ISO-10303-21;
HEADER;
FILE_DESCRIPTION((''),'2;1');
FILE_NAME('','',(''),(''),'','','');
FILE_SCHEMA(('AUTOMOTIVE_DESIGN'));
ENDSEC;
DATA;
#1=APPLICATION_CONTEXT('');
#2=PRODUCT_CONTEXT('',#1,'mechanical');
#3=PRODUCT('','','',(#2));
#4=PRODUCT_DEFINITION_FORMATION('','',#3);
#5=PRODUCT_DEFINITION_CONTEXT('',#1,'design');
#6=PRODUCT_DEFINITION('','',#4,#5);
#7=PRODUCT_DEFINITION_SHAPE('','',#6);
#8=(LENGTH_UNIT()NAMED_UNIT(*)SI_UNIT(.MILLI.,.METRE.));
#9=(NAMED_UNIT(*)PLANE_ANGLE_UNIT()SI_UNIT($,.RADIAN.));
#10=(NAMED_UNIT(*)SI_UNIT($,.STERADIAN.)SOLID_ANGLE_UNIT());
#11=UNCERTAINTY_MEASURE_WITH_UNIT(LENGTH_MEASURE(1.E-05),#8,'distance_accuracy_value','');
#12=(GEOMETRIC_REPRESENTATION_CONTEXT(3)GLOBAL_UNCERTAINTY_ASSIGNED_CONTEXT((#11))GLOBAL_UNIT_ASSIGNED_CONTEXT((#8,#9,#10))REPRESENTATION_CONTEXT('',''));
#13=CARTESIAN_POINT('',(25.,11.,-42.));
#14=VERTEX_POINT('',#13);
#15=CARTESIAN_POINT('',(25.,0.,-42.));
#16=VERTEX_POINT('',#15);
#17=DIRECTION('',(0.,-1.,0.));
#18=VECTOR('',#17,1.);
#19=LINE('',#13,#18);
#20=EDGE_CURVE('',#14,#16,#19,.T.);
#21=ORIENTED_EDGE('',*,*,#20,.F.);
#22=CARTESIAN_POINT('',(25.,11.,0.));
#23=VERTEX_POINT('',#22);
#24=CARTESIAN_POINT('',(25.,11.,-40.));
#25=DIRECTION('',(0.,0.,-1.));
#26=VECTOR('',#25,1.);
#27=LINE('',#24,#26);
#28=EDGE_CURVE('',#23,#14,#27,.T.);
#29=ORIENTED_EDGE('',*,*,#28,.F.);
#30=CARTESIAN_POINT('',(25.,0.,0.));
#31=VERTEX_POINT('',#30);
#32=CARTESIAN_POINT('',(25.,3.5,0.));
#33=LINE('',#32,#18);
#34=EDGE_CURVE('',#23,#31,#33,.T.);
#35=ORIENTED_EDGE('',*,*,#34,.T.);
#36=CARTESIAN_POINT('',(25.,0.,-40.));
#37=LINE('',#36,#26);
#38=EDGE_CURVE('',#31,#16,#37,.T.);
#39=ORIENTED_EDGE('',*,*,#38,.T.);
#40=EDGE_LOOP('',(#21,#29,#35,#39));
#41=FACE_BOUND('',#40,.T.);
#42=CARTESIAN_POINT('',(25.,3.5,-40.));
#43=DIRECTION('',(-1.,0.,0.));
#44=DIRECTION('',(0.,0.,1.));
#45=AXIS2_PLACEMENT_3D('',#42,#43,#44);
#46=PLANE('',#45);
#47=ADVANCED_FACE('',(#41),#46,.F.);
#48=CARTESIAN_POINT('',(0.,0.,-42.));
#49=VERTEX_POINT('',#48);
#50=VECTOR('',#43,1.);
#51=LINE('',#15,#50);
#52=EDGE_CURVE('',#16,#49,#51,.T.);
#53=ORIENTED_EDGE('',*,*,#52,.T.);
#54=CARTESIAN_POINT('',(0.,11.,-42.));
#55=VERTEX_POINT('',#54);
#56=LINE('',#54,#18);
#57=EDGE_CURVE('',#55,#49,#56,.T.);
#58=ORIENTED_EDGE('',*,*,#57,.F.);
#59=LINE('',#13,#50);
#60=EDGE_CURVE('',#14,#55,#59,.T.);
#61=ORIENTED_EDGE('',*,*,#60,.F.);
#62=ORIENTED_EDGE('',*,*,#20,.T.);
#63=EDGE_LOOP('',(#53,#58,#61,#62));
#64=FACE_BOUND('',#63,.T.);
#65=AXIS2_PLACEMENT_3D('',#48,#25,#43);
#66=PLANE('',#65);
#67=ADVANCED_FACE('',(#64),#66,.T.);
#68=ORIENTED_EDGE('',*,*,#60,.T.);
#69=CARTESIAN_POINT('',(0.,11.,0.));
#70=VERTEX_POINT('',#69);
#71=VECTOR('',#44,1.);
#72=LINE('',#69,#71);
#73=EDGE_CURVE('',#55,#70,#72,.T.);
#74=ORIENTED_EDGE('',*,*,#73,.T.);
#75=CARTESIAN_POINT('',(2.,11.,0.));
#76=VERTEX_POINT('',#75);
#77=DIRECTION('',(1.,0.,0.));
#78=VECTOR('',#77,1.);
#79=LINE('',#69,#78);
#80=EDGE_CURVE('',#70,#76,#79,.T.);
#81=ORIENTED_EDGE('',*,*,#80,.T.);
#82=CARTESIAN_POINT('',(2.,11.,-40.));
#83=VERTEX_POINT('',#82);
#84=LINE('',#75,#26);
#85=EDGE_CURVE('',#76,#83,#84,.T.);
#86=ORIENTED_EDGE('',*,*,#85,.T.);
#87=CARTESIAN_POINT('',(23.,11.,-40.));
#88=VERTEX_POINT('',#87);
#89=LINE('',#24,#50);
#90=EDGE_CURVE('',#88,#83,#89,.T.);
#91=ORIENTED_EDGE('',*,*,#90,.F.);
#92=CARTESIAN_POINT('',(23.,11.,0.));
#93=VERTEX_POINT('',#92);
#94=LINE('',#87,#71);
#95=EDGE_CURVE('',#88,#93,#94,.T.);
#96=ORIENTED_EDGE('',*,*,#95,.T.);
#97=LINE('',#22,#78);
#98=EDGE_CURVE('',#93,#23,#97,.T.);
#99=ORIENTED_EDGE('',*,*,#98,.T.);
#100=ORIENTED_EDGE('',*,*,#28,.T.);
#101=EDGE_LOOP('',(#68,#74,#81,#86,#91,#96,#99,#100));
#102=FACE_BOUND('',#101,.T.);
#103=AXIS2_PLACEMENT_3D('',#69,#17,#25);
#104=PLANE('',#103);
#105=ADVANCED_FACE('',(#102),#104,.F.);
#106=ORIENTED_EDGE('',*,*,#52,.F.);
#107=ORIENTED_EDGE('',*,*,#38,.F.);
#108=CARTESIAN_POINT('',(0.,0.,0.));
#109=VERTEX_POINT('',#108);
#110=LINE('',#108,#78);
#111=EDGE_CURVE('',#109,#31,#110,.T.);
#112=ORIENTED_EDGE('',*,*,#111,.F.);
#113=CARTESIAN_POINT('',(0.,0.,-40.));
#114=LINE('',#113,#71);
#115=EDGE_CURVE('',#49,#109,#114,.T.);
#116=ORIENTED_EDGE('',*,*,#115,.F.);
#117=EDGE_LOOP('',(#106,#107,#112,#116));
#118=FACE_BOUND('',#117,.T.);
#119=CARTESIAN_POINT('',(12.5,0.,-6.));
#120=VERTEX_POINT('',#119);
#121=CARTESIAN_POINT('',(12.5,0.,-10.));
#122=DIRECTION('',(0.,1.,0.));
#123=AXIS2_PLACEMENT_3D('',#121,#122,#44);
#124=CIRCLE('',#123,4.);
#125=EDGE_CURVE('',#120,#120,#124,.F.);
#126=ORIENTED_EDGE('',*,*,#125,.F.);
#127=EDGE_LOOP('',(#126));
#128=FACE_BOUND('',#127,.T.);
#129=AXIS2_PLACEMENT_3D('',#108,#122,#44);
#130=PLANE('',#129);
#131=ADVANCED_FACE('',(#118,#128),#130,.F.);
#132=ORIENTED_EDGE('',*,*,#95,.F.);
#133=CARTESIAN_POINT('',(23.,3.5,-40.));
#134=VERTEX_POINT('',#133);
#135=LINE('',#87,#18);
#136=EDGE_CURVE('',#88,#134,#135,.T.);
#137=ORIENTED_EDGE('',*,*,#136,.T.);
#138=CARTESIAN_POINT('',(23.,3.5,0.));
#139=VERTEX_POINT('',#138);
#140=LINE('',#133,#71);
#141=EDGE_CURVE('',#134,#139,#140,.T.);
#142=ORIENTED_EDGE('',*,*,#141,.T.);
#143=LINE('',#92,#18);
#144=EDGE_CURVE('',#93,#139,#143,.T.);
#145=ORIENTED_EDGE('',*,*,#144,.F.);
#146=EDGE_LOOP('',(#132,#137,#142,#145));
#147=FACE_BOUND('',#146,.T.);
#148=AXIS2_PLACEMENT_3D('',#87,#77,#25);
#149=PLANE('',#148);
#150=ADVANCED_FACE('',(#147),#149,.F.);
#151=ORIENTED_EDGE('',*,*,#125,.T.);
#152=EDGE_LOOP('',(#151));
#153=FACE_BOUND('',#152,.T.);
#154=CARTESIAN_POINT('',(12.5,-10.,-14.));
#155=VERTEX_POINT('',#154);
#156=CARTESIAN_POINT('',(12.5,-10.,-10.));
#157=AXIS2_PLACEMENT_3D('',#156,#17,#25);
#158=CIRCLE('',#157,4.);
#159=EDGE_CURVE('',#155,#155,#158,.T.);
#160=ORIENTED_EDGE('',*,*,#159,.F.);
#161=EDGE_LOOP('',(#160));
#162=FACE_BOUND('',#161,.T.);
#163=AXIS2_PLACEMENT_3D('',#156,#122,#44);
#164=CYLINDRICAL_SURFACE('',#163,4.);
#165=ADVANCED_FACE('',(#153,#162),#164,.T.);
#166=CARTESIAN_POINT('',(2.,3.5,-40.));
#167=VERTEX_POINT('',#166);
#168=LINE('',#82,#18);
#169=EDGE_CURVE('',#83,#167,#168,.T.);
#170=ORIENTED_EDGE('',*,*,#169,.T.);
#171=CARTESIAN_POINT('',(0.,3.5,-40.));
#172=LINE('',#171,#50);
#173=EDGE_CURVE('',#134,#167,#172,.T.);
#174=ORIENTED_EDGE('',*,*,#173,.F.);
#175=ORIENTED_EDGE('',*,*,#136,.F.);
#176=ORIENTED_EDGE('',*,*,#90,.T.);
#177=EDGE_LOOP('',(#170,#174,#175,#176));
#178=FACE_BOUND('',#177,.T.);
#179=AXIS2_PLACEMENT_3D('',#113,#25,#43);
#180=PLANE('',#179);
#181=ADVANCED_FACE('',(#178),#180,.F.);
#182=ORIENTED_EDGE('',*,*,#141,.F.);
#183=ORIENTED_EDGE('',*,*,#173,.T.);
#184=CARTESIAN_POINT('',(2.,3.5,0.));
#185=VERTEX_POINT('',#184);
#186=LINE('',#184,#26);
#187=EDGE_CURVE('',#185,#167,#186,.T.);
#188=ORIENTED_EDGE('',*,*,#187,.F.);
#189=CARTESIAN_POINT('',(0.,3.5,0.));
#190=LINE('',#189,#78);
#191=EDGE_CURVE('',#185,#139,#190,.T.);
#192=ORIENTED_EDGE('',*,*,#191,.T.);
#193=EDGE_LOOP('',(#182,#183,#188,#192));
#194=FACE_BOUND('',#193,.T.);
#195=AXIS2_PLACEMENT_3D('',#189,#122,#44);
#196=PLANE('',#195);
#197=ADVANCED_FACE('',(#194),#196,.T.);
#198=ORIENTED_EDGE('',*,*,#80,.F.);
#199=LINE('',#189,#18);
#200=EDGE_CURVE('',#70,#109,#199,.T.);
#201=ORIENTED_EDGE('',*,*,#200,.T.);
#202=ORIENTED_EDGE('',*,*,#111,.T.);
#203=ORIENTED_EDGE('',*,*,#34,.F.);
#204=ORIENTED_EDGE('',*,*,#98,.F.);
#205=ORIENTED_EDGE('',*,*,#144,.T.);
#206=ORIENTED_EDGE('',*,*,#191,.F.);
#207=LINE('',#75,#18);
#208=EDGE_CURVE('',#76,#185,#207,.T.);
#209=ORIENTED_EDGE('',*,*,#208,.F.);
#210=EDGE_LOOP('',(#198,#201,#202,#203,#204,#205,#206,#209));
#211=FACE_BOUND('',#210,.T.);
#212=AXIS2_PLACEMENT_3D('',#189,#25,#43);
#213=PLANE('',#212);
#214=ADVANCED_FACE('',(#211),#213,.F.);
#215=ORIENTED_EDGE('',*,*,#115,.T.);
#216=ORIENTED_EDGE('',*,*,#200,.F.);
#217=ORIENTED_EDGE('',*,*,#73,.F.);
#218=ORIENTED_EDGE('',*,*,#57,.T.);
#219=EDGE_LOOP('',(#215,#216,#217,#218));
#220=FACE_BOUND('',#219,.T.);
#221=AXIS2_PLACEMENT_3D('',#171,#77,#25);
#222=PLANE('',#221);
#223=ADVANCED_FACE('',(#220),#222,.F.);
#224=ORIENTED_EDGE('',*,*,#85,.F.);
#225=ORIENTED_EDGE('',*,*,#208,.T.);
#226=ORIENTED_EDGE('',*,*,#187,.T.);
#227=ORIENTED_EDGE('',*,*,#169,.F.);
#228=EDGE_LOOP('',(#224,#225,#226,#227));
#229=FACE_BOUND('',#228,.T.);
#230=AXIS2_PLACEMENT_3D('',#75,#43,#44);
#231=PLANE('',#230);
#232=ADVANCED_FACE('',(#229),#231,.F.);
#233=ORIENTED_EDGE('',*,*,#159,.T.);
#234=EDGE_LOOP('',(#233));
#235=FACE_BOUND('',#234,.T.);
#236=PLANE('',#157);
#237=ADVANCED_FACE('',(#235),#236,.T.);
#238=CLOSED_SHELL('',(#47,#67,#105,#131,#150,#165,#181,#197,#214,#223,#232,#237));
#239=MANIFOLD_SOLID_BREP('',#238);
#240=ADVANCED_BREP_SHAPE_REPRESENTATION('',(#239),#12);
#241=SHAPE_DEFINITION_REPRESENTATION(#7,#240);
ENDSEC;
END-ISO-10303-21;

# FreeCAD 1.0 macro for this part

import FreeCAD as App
import Part
import Sketcher
from FreeCAD import Vector

doc = App.newDocument("Part")
body = doc.addObject("PartDesign::Body", "Body")

# Sketch on XZ plane
sketch1 = body.newObject("Sketcher::SketchObject", "Sketch")
sketch1.AttachmentSupport = (doc.getObject("XZ_Plane"), [""])
sketch1.MapMode = "FlatFace"
sketch1.addGeometry(Part.LineSegment(Vector(0, -40, 0), Vector(0, 0, 0)), False)
sketch1.addGeometry(Part.LineSegment(Vector(0, 0, 0), Vector(25, 0, 0)), False)
sketch1.addGeometry(Part.LineSegment(Vector(25, 0, 0), Vector(25, -40, 0)), False)
sketch1.addGeometry(Part.LineSegment(Vector(25, -40, 0), Vector(0, -40, 0)), False)
sketch1.addConstraint(Sketcher.Constraint("Coincident", 0, 2, 1, 1))
sketch1.addConstraint(Sketcher.Constraint("Coincident", 1, 2, 2, 1))
sketch1.addConstraint(Sketcher.Constraint("Coincident", 2, 2, 3, 1))
sketch1.addConstraint(Sketcher.Constraint("Coincident", 3, 2, 0, 1))
sketch1.addConstraint(Sketcher.Constraint("Vertical", 0))
sketch1.addConstraint(Sketcher.Constraint("Horizontal", 1))
sketch1.addConstraint(Sketcher.Constraint("Vertical", 2))
sketch1.addConstraint(Sketcher.Constraint("Horizontal", 3))
sketch1.addConstraint(Sketcher.Constraint("Coincident", 0, 2, -1, 1))
sketch1.addConstraint(Sketcher.Constraint("DistanceX", 1, 1, 1, 2, 25.0))
sketch1.addConstraint(Sketcher.Constraint("DistanceY", 0, 1, 0, 2, 40.0))
pad1 = body.newObject("PartDesign::Pad", "Pad")
pad1.Profile = sketch1
pad1.Length = 3.5
pad1.Reversed = True

# Sketch on XZ plane
sketch2 = body.newObject("Sketcher::SketchObject", "Sketch001")
sketch2.AttachmentSupport = (doc.getObject("XZ_Plane"), [""])
sketch2.MapMode = "FlatFace"
sketch2.AttachmentOffset = App.Placement(Vector(0, 0, -3.5), App.Rotation())
sketch2.addGeometry(Part.LineSegment(Vector(0, -40, 0), Vector(0, 0, 0)), False)
sketch2.addGeometry(Part.LineSegment(Vector(0, 0, 0), Vector(2, 0, 0)), False)
sketch2.addGeometry(Part.LineSegment(Vector(2, 0, 0), Vector(2, -40, 0)), False)
sketch2.addGeometry(Part.LineSegment(Vector(2, -40, 0), Vector(0, -40, 0)), False)
sketch2.addGeometry(Part.LineSegment(Vector(23, -40, 0), Vector(23, 0, 0)), False)
sketch2.addGeometry(Part.LineSegment(Vector(23, 0, 0), Vector(25, 0, 0)), False)
sketch2.addGeometry(Part.LineSegment(Vector(25, 0, 0), Vector(25, -40, 0)), False)
sketch2.addGeometry(Part.LineSegment(Vector(25, -40, 0), Vector(23, -40, 0)), False)
sketch2.addConstraint(Sketcher.Constraint("Coincident", 0, 2, 1, 1))
sketch2.addConstraint(Sketcher.Constraint("Coincident", 1, 2, 2, 1))
sketch2.addConstraint(Sketcher.Constraint("Coincident", 2, 2, 3, 1))
sketch2.addConstraint(Sketcher.Constraint("Coincident", 3, 2, 0, 1))
sketch2.addConstraint(Sketcher.Constraint("Coincident", 4, 2, 5, 1))
sketch2.addConstraint(Sketcher.Constraint("Coincident", 5, 2, 6, 1))
sketch2.addConstraint(Sketcher.Constraint("Coincident", 6, 2, 7, 1))
sketch2.addConstraint(Sketcher.Constraint("Coincident", 7, 2, 4, 1))
sketch2.addConstraint(Sketcher.Constraint("Vertical", 0))
sketch2.addConstraint(Sketcher.Constraint("Horizontal", 1))
sketch2.addConstraint(Sketcher.Constraint("Vertical", 2))
sketch2.addConstraint(Sketcher.Constraint("Horizontal", 3))
sketch2.addConstraint(Sketcher.Constraint("Vertical", 4))
sketch2.addConstraint(Sketcher.Constraint("Horizontal", 5))
sketch2.addConstraint(Sketcher.Constraint("Vertical", 6))
sketch2.addConstraint(Sketcher.Constraint("Horizontal", 7))
sketch2.addConstraint(Sketcher.Constraint("Coincident", 0, 2, -1, 1))
sketch2.addConstraint(Sketcher.Constraint("PointOnObject", 4, 2, -1))
sketch2.addConstraint(Sketcher.Constraint("Horizontal", 3, 2, 6, 2))
sketch2.addConstraint(Sketcher.Constraint("Equal", 3, 5))
sketch2.addConstraint(Sketcher.Constraint("DistanceX", 1, 1, 1, 2, 2.0))
sketch2.addConstraint(Sketcher.Constraint("DistanceY", 0, 1, 0, 2, 40.0))
sketch2.addConstraint(Sketcher.Constraint("DistanceX", -1, 1, 4, 2, 23.0))
pad2 = body.newObject("PartDesign::Pad", "Pad001")
pad2.Profile = sketch2
pad2.Length = 7.5
pad2.Reversed = True

# Sketch on XZ plane
sketch3 = body.newObject("Sketcher::SketchObject", "Sketch002")
sketch3.AttachmentSupport = (doc.getObject("XZ_Plane"), [""])
sketch3.MapMode = "FlatFace"
sketch3.addGeometry(Part.Circle(Vector(12.5, -10, 0), Vector(0, 0, 1), 4), False)
sketch3.addConstraint(Sketcher.Constraint("Diameter", 0, 8.0))
sketch3.addConstraint(Sketcher.Constraint("DistanceY", 0, 3, -1, 1, 10.0))
sketch3.addConstraint(Sketcher.Constraint("DistanceX", -1, 1, 0, 3, 12.5))
pad3 = body.newObject("PartDesign::Pad", "Pad002")
pad3.Profile = sketch3
pad3.Length = 10

# Sketch on XY plane
sketch4 = body.newObject("Sketcher::SketchObject", "Sketch003")
sketch4.AttachmentSupport = (doc.getObject("XY_Plane"), [""])
sketch4.MapMode = "FlatFace"
sketch4.AttachmentOffset = App.Placement(Vector(0, 0, -40), App.Rotation())
sketch4.addGeometry(Part.LineSegment(Vector(25, 11, 0), Vector(25, 0, 0)), False)
sketch4.addGeometry(Part.LineSegment(Vector(25, 0, 0), Vector(0, 0, 0)), False)
sketch4.addGeometry(Part.LineSegment(Vector(0, 0, 0), Vector(0, 11, 0)), False)
sketch4.addGeometry(Part.LineSegment(Vector(0, 11, 0), Vector(25, 11, 0)), False)
sketch4.addConstraint(Sketcher.Constraint("Coincident", 0, 2, 1, 1))
sketch4.addConstraint(Sketcher.Constraint("Coincident", 1, 2, 2, 1))
sketch4.addConstraint(Sketcher.Constraint("Coincident", 2, 2, 3, 1))
sketch4.addConstraint(Sketcher.Constraint("Coincident", 3, 2, 0, 1))
sketch4.addConstraint(Sketcher.Constraint("Vertical", 0))
sketch4.addConstraint(Sketcher.Constraint("Horizontal", 1))
sketch4.addConstraint(Sketcher.Constraint("Vertical", 2))
sketch4.addConstraint(Sketcher.Constraint("Horizontal", 3))
sketch4.addConstraint(Sketcher.Constraint("Coincident", 1, 2, -1, 1))
sketch4.addConstraint(Sketcher.Constraint("DistanceX", 1, 2, 1, 1, 25.0))
sketch4.addConstraint(Sketcher.Constraint("DistanceY", 0, 2, 0, 1, 11.0))
pad4 = body.newObject("PartDesign::Pad", "Pad003")
pad4.Profile = sketch4
pad4.Length = 2
pad4.Reversed = True

doc.recompute()
